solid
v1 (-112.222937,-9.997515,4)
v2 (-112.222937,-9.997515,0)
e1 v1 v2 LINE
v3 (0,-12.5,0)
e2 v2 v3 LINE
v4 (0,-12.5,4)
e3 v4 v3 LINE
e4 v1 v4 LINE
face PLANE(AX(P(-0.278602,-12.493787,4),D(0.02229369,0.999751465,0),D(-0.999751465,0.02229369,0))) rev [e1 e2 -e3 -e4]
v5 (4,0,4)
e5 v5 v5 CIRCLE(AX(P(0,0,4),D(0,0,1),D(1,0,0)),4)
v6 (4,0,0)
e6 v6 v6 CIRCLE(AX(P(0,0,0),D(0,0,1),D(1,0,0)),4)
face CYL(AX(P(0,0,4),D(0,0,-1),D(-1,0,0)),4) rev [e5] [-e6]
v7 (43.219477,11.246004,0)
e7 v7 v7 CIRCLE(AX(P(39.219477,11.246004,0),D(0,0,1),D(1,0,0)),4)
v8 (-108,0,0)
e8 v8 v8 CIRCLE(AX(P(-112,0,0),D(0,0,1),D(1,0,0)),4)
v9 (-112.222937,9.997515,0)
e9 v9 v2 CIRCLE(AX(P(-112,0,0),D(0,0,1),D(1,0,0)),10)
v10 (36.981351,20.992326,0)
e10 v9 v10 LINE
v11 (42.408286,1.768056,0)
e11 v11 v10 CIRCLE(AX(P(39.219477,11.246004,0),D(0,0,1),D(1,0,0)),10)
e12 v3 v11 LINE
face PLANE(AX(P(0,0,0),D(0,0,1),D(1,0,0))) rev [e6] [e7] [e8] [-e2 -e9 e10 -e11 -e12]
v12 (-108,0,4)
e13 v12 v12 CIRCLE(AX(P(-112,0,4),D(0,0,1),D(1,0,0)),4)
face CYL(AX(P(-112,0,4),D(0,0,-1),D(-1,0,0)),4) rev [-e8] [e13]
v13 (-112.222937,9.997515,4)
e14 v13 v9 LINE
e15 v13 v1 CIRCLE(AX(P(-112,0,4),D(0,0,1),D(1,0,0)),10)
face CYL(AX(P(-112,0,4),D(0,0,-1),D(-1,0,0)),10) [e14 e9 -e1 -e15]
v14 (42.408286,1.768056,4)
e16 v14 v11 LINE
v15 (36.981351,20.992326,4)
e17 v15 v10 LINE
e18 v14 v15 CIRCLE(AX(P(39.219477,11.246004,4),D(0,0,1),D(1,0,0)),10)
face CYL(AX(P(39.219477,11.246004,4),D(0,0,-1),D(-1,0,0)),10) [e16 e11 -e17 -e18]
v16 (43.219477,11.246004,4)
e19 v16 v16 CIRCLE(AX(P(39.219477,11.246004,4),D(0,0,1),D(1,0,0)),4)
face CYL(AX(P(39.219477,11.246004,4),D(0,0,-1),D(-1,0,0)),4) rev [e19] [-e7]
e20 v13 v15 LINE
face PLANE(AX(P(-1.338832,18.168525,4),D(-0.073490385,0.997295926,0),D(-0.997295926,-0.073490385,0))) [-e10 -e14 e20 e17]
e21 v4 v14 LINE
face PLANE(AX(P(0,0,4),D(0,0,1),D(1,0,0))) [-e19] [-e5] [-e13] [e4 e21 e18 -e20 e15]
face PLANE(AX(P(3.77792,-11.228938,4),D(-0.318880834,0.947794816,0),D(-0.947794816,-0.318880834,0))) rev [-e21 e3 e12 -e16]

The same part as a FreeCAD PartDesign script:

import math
import FreeCAD as App
import Part
import Sketcher

V = App.Vector

doc = App.newDocument("Part")
params = doc.addObject("Spreadsheet::Sheet", "Params")
for row, (alias, value) in enumerate([
    ("sketch1_diameter", "8 mm"),
    ("sketch1_diameter2", "8 mm"),
    ("sketch1_diameter3", "8 mm"),
    ("sketch1_radius", "10 mm"),
    ("sketch1_radius2", "10 mm"),
    ("pad1_length", "4 mm"),
], start=1):
    params.set(f"A{row}", alias)
    params.set(f"B{row}", "=" + value)
    params.setAlias(f"B{row}", alias)

body = doc.addObject("PartDesign::Body", "Body")

# Sketch on XY plane
sketch1 = doc.addObject("Sketcher::SketchObject", "Sketch")
body.addObject(sketch1)
sketch1.AttachmentSupport = (doc.XY_Plane, [""])
sketch1.MapMode = "FlatFace"
sketch1.addGeometry([
    Part.LineSegment(V(0, -12.5, 0), V(42.408286, 1.768056, 0)),  # 0
    Part.ArcOfCircle(Part.Circle(V(39.219477, 11.246004, 0), V(0, 0, 1), 10), math.radians(-71.404744), math.radians(102.933068)),  # 1
    Part.LineSegment(V(36.981351, 20.992326, 0), V(-112.222937, 9.997515, 0)),  # 2
    Part.ArcOfCircle(Part.Circle(V(-112, 0, 0), V(0, 0, 1), 10), math.radians(91.27744), math.radians(268.72256)),  # 3
    Part.LineSegment(V(-112.222937, -9.997515, 0), V(0, -12.5, 0)),  # 4
    Part.Circle(V(-112, 0, 0), V(0, 0, 1), 4),  # 5
    Part.Circle(V(0, 0, 0), V(0, 0, 1), 4),  # 6
    Part.Circle(V(39.219477, 11.246004, 0), V(0, 0, 1), 4),  # 7
], False)
sketch1.addConstraint([
    Sketcher.Constraint("Coincident", 0, 2, 1, 1),
    Sketcher.Constraint("Coincident", 1, 2, 2, 1),
    Sketcher.Constraint("Coincident", 2, 2, 3, 1),
    Sketcher.Constraint("Coincident", 3, 2, 4, 1),
    Sketcher.Constraint("Coincident", 4, 2, 0, 1),
    Sketcher.Constraint("Coincident", 6, 3, -1, 1),
    Sketcher.Constraint("Coincident", 5, 3, 3, 3),
    Sketcher.Constraint("Coincident", 7, 3, 1, 3),
    Sketcher.Constraint("PointOnObject", 3, 3, -1),
    Sketcher.Constraint("PointOnObject", 4, 2, -2),
    Sketcher.Constraint("Diameter", 5, 8.0),
    Sketcher.Constraint("Diameter", 6, 8.0),
    Sketcher.Constraint("Diameter", 7, 8.0),
    Sketcher.Constraint("Radius", 1, 10.0),
    Sketcher.Constraint("Radius", 3, 10.0),
    Sketcher.Constraint("DistanceX", 3, 3, -1, 1, 112.0),
    Sketcher.Constraint("DistanceY", 4, 2, -1, 1, 12.5),
    Sketcher.Constraint("Distance", 2, 149.608841),
    Sketcher.Constraint("DistanceX", -1, 1, 1, 2, 36.981351),
    Sketcher.Constraint("DistanceX", 1, 3, 0, 2, 3.188808),
    Sketcher.Constraint("DistanceY", 1, 3, 1, 2, 9.746322),
    Sketcher.Constraint("DistanceY", 2, 2, 1, 2, 10.994811),
    Sketcher.Constraint("DistanceY", 3, 2, 2, 2, 19.995029),
])
sketch1.setExpression("Constraints[10]", "Params.sketch1_diameter")
sketch1.setExpression("Constraints[11]", "Params.sketch1_diameter2")
sketch1.setExpression("Constraints[12]", "Params.sketch1_diameter3")
sketch1.setExpression("Constraints[13]", "Params.sketch1_radius")
sketch1.setExpression("Constraints[14]", "Params.sketch1_radius2")
pad1 = doc.addObject("PartDesign::Pad", "Pad")
body.addObject(pad1)
pad1.Profile = sketch1
pad1.setExpression("Length", "Params.pad1_length")

doc.recompute()
